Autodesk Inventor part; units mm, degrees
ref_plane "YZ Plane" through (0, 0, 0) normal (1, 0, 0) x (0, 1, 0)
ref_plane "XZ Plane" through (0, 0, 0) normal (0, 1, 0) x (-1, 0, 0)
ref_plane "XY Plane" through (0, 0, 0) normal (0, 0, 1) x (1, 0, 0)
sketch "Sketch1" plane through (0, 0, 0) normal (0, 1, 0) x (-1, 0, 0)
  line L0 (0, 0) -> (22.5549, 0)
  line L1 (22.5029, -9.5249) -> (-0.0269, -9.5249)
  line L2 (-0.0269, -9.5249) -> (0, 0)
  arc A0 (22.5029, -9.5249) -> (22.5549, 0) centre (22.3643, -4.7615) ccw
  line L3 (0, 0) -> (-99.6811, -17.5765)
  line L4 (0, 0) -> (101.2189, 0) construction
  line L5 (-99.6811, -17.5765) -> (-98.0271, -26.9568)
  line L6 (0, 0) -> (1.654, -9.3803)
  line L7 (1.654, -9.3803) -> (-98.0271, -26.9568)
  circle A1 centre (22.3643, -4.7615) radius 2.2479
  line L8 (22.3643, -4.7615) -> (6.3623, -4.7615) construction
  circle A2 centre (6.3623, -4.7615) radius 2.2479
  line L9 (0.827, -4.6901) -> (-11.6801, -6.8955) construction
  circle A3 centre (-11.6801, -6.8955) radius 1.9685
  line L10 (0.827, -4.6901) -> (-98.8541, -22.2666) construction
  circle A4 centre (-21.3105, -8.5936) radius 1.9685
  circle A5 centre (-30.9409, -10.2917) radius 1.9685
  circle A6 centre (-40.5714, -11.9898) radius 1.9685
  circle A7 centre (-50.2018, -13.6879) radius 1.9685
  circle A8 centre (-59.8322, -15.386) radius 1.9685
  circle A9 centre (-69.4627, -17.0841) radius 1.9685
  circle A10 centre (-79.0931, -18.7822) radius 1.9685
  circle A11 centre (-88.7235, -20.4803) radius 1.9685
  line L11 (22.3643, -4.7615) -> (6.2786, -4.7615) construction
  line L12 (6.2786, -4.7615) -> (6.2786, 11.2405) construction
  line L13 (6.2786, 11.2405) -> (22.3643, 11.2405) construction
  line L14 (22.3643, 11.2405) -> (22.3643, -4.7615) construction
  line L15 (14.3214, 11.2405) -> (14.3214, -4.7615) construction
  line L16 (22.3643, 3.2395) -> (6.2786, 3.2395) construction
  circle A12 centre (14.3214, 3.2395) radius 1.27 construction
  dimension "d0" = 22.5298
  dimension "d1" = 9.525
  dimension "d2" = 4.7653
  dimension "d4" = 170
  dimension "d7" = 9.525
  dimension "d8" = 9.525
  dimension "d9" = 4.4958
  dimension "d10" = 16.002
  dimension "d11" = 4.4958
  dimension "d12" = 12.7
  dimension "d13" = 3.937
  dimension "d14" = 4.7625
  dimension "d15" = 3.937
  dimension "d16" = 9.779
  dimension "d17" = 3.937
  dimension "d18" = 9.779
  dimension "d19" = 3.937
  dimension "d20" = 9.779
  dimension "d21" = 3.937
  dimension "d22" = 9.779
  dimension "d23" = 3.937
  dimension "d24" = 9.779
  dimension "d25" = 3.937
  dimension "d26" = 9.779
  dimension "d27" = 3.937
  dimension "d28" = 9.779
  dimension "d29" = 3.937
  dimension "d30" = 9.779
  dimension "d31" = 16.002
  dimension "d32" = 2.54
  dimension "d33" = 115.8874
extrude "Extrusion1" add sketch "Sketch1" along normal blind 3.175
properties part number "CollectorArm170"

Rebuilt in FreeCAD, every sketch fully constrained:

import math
import FreeCAD as App
import Part
import Sketcher
from FreeCAD import Vector
Q = App.Units.Quantity

doc = App.newDocument("Part")
body = doc.addObject("PartDesign::Body", "Body")

sketch1 = body.newObject("Sketcher::SketchObject", "Sketch")
sketch1.AttachmentSupport = (doc.getObject("XZ_Plane"), [""])
sketch1.MapMode = "FlatFace"
sketch1.addGeometry([
    Part.LineSegment(Vector(-22.6, 0, 0), Vector(0, 0, 0)),
    Part.LineSegment(Vector(0, 0, 0), Vector(99.7, -17.6, 0)),
    Part.LineSegment(Vector(99.7, -17.6, 0), Vector(98, -27, 0)),
    Part.LineSegment(Vector(98, -27, 0), Vector(-0.8, -9.5, 0)),
    Part.LineSegment(Vector(-0.8, -9.5, 0), Vector(-22.5, -9.5, 0)),
    Part.ArcOfCircle(Part.Circle(Vector(-22.4, -4.8, 0), Vector(0, 0, 1), 4.8), math.radians(92), math.radians(268)),
    Part.Circle(Vector(-6.4, -4.8, 0), Vector(0, 0, 1), 2.2),
    Part.Circle(Vector(-22.4, -4.8, 0), Vector(0, 0, 1), 2.2),
    Part.Circle(Vector(21.3, -8.6, 0), Vector(0, 0, 1), 2),
    Part.Circle(Vector(11.7, -6.9, 0), Vector(0, 0, 1), 2),
    Part.Circle(Vector(88.7, -20.5, 0), Vector(0, 0, 1), 2),
    Part.Circle(Vector(79.1, -18.8, 0), Vector(0, 0, 1), 2),
    Part.Circle(Vector(69.5, -17.1, 0), Vector(0, 0, 1), 2),
    Part.Circle(Vector(59.8, -15.4, 0), Vector(0, 0, 1), 2),
    Part.Circle(Vector(50.2, -13.7, 0), Vector(0, 0, 1), 2),
    Part.Circle(Vector(40.6, -12, 0), Vector(0, 0, 1), 2),
    Part.Circle(Vector(30.9, -10.3, 0), Vector(0, 0, 1), 2),
], False)
sketch1.addConstraint([
    Sketcher.Constraint("Coincident", 0, 2, 1, 1),
    Sketcher.Constraint("Coincident", 1, 2, 2, 1),
    Sketcher.Constraint("Coincident", 2, 2, 3, 1),
    Sketcher.Constraint("Coincident", 3, 2, 4, 1),
    Sketcher.Constraint("Coincident", 4, 2, 5, 2),
    Sketcher.Constraint("Coincident", 5, 1, 0, 1),
    Sketcher.Constraint("Horizontal", 0),
    Sketcher.Constraint("Horizontal", 4),
    Sketcher.Constraint("Coincident", 0, 2, -1, 1),
    Sketcher.Constraint("Coincident", 7, 3, 5, 3),
    Sketcher.Constraint("Equal", 6, 7),
    Sketcher.Constraint("Equal", 8, 9),
    Sketcher.Constraint("Equal", 9, 10),
    Sketcher.Constraint("Equal", 10, 11),
    Sketcher.Constraint("Equal", 11, 12),
    Sketcher.Constraint("Equal", 12, 13),
    Sketcher.Constraint("Equal", 13, 14),
    Sketcher.Constraint("Equal", 14, 15),
    Sketcher.Constraint("Equal", 15, 16),
    Sketcher.Constraint("Perpendicular", 1, 2),
    Sketcher.Constraint("Perpendicular", 2, 3),
    Sketcher.Constraint("Horizontal", 5, 3, 6, 3),
    Sketcher.Constraint("Diameter", 6, Q("0.177 in")),
    Sketcher.Constraint("Diameter", 8, Q("0.155 in")),
    Sketcher.Constraint("Angle", 3, Q("170 deg")),
    Sketcher.Constraint("Radius", 5, 4.7654),
    Sketcher.Constraint("DistanceX", 5, 3, 6, 3, Q("0.63 in")),
    Sketcher.Constraint("Distance", 2, Q("0.375 in")),
    Sketcher.Constraint("DistanceY", 3, 2, -1, 1, Q("0.375 in")),
    Sketcher.Constraint("DistanceX", 0, 1, 0, 2, Q("0.888 in")),
    Sketcher.Constraint("Distance", 1, Q("3.985 in")),
    Sketcher.Constraint("DistanceX", 4, 2, 4, 1, Q("0.8531 in")),
    Sketcher.Constraint("DistanceX", -1, 1, 8, 3, Q("0.839 in")),
    Sketcher.Constraint("DistanceY", 11, 3, 6, 3, Q("0.552 in")),
    Sketcher.Constraint("DistanceX", 14, 3, 1, 2, Q("1.948 in")),
    Sketcher.Constraint("DistanceY", 10, 3, -1, 1, Q("0.8063 in")),
    Sketcher.Constraint("DistanceX", -1, 1, 11, 3, Q("3.1139 in")),
    Sketcher.Constraint("DistanceY", 12, 3, -1, 1, Q("0.6726 in")),
    Sketcher.Constraint("DistanceX", -1, 1, 13, 3, Q("2.3556 in")),
    Sketcher.Constraint("DistanceY", 14, 3, -1, 1, Q("0.5389 in")),
    Sketcher.Constraint("DistanceX", -1, 1, 15, 3, Q("1.5973 in")),
    Sketcher.Constraint("DistanceX", 9, 3, 10, 3, Q("3.0332 in")),
    Sketcher.Constraint("DistanceX", 12, 3, 10, 3, Q("0.7583 in")),
    Sketcher.Constraint("DistanceY", 11, 3, 13, 3, Q("0.1337 in")),
    Sketcher.Constraint("DistanceX", 14, 3, 12, 3, Q("0.7583 in")),
    Sketcher.Constraint("DistanceY", 13, 3, 15, 3, Q("0.1337 in")),
    Sketcher.Constraint("DistanceY", 15, 3, 8, 3, Q("0.1337 in")),
    Sketcher.Constraint("DistanceX", 9, 3, 16, 3, Q("0.7583 in")),
    Sketcher.Constraint("DistanceY", 16, 3, 9, 3, Q("0.1337 in")),
    Sketcher.Constraint("DistanceY", 14, 3, 16, 3, Q("0.1337 in")),
])
pad1 = body.newObject("PartDesign::Pad", "Pad")
pad1.Profile = sketch1
pad1.Length = Q("0.125 in")
pad1.Reversed = True

doc.recompute()
